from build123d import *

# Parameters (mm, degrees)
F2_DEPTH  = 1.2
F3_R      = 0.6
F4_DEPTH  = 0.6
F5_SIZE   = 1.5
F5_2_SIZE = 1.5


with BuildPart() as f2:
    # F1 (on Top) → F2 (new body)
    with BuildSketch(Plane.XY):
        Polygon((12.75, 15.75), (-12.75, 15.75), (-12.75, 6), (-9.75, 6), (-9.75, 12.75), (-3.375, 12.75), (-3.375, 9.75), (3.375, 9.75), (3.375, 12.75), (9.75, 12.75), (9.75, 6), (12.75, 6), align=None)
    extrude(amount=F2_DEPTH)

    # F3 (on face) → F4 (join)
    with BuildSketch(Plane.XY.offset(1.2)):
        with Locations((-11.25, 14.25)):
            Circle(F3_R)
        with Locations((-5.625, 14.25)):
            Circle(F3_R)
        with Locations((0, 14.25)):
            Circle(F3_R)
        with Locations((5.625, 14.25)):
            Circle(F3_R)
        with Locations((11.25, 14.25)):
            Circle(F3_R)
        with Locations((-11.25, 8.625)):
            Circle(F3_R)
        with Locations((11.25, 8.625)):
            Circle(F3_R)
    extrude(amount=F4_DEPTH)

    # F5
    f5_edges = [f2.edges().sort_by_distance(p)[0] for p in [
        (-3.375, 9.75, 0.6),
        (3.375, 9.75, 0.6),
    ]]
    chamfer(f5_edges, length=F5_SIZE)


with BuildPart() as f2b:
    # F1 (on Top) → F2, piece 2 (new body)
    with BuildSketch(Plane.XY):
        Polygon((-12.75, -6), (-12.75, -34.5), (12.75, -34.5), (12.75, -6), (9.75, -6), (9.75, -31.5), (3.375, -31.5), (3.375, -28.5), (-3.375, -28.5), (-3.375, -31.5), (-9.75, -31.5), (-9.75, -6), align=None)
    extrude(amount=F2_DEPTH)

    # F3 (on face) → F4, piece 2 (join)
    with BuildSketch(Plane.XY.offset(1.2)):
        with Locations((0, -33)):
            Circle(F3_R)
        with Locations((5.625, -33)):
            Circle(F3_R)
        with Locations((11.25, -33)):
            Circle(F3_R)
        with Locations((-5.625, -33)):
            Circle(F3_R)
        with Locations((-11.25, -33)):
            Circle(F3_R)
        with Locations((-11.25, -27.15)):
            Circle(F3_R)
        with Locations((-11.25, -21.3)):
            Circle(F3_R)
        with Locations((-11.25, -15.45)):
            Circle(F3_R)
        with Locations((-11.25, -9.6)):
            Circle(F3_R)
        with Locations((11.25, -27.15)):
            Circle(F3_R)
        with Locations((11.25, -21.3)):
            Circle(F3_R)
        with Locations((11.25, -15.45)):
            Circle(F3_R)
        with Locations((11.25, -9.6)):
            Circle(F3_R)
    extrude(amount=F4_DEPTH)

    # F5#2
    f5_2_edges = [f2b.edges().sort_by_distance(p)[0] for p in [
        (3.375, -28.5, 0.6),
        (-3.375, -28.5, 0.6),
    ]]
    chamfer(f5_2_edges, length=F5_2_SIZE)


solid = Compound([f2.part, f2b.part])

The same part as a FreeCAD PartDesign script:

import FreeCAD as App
import Part
import Sketcher
Q = App.Units.Quantity


def edges_at(feature, points):
    """Names of the edges that pass closest to the given points."""
    edges = feature.Shape.Edges
    near = lambda p: min(range(len(edges)), key=lambda i: edges[i].distToShape(Part.Vertex(*p))[0])
    return sorted({f"Edge{near(p) + 1}" for p in points})


def add_polygon(sketch, points):
    """Adds a closed chain of lines whose ends are joined by coincident constraints."""
    first, n = sketch.GeometryCount, len(points)
    for a, b in zip(points, points[1:] + points[:1]):
        sketch.addGeometry(Part.LineSegment(App.Vector(*a, 0), App.Vector(*b, 0)), False)
    for i in range(n):
        sketch.addConstraint(Sketcher.Constraint("Coincident", first + i, 2, first + (i + 1) % n, 1))

doc = App.newDocument("Part")
params = doc.addObject("Spreadsheet::Sheet", "Params")
for row, (alias, value) in enumerate([
    ("sketch1_width", "3 mm"),
    ("sketch1_width2", "25.5 mm"),
    ("sketch1_width3", "6.75 mm"),
    ("pad1_length", "1.2 mm"),
    ("sketch2_diameter", "1.2 mm"),
    ("pad2_length", "0.6 mm"),
    ("chamfer_size", "1.5 mm"),
    ("sketch3_width", "3 mm"),
    ("sketch3_width2", "25.5 mm"),
    ("sketch3_height", "28.5 mm"),
    ("sketch3_width3", "6.75 mm"),
    ("pad3_length", "1.2 mm"),
    ("sketch4_diameter", "1.2 mm"),
    ("pad4_length", "0.6 mm"),
    ("chamfer2_size", "1.5 mm"),
], start=1):
    params.set(f"A{row}", alias)
    params.set(f"B{row}", "=" + value)
    params.setAlias(f"B{row}", alias)

body = doc.addObject("PartDesign::Body", "Body")

sketch1 = body.newObject("Sketcher::SketchObject", "Sketch")
sketch1.AttachmentSupport = (doc.getObject("XY_Plane"), [""])
sketch1.MapMode = "FlatFace"
add_polygon(sketch1, [(12.8, 15.8), (-12.8, 15.8), (-12.8, 6), (-9.8, 6), (-9.8, 12.8), (-3.4, 12.8), (-3.4, 9.8), (3.4, 9.8), (3.4, 12.8), (9.8, 12.8), (9.8, 6), (12.8, 6)])
sketch1.addConstraint([
    Sketcher.Constraint("Horizontal", 0),
    Sketcher.Constraint("Vertical", 1),
    Sketcher.Constraint("Horizontal", 2),
    Sketcher.Constraint("Vertical", 3),
    Sketcher.Constraint("Horizontal", 4),
    Sketcher.Constraint("Vertical", 5),
    Sketcher.Constraint("Horizontal", 6),
    Sketcher.Constraint("Vertical", 7),
    Sketcher.Constraint("Horizontal", 8),
    Sketcher.Constraint("Vertical", 9),
    Sketcher.Constraint("Horizontal", 10),
    Sketcher.Constraint("Vertical", 11),
    Sketcher.Constraint("Symmetric", 4, 2, 7, 2, -2),
    Sketcher.Constraint("Symmetric", 2, 2, 9, 2, -2),
    Sketcher.Constraint("Equal", 2, 10),
    Sketcher.Constraint("Equal", 6, 3),
    Sketcher.Constraint("Equal", 10, 5),
    Sketcher.Constraint("DistanceX", 2, 1, 2, 2, Q("3 mm")),
    Sketcher.Constraint("DistanceX", 0, 2, 0, 1, Q("25.5 mm")),
    Sketcher.Constraint("DistanceY", -1, 1, 1, 2, Q("6 mm")),
    Sketcher.Constraint("DistanceY", 3, 2, 0, 2, Q("3 mm")),
    Sketcher.Constraint("DistanceX", 6, 1, 6, 2, Q("6.75 mm")),
])
sketch1.setExpression("Constraints[29]", "Params.sketch1_width")
sketch1.setExpression("Constraints[30]", "Params.sketch1_width2")
sketch1.setExpression("Constraints[33]", "Params.sketch1_width3")
pad1 = body.newObject("PartDesign::Pad", "Pad")
pad1.Profile = sketch1
pad1.setExpression("Length", "Params.pad1_length")

sketch2 = body.newObject("Sketcher::SketchObject", "Sketch001")
sketch2.AttachmentSupport = (doc.getObject("XY_Plane"), [""])
sketch2.MapMode = "FlatFace"
sketch2.AttachmentOffset = App.Placement(App.Vector(0, 0, 1.2), App.Rotation())
sketch2.addGeometry([
    Part.Circle(App.Vector(-11.2, 14.2, 0), App.Vector(0, 0, 1), 0.6),
    Part.Circle(App.Vector(-5.6, 14.2, 0), App.Vector(0, 0, 1), 0.6),
    Part.Circle(App.Vector(0, 14.2, 0), App.Vector(0, 0, 1), 0.6),
    Part.Circle(App.Vector(5.6, 14.2, 0), App.Vector(0, 0, 1), 0.6),
    Part.Circle(App.Vector(11.2, 14.2, 0), App.Vector(0, 0, 1), 0.6),
    Part.Circle(App.Vector(-11.2, 8.6, 0), App.Vector(0, 0, 1), 0.6),
    Part.Circle(App.Vector(11.2, 8.6, 0), App.Vector(0, 0, 1), 0.6),
], False)
sketch2.addConstraint([
    Sketcher.Constraint("Equal", 0, 1),
    Sketcher.Constraint("Equal", 1, 2),
    Sketcher.Constraint("Equal", 2, 3),
    Sketcher.Constraint("Equal", 3, 4),
    Sketcher.Constraint("Equal", 4, 5),
    Sketcher.Constraint("Equal", 5, 6),
    Sketcher.Constraint("Symmetric", 1, 3, 3, 3, -2),
    Sketcher.Constraint("Symmetric", 0, 3, 4, 3, -2),
    Sketcher.Constraint("Symmetric", 5, 3, 6, 3, -2),
    Sketcher.Constraint("PointOnObject", 2, 3, -2),
    Sketcher.Constraint("Horizontal", 0, 3, 1, 3),
    Sketcher.Constraint("Horizontal", 1, 3, 2, 3),
    Sketcher.Constraint("Vertical", 0, 3, 5, 3),
    Sketcher.Constraint("Diameter", 0, Q("1.2 mm")),
    Sketcher.Constraint("DistanceX", 0, 3, 4, 3, Q("22.5 mm")),
    Sketcher.Constraint("DistanceY", -1, 1, 0, 3, Q("14.25 mm")),
    Sketcher.Constraint("DistanceX", 1, 3, 3, 3, Q("11.25 mm")),
    Sketcher.Constraint("DistanceY", -1, 1, 5, 3, Q("8.625 mm")),
])
sketch2.setExpression("Constraints[13]", "Params.sketch2_diameter")
pad2 = body.newObject("PartDesign::Pad", "Pad001")
pad2.Profile = sketch2
pad2.setExpression("Length", "Params.pad2_length")
doc.recompute()

chamfer = body.newObject("PartDesign::Chamfer", "Chamfer")
chamfer.Base = (pad2, edges_at(pad2, [(-3.375, 9.75, 0.6), (3.375, 9.75, 0.6)]))
chamfer.setExpression("Size", "Params.chamfer_size")
body2 = doc.addObject("PartDesign::Body", "Body001")

sketch3 = body2.newObject("Sketcher::SketchObject", "Sketch002")
sketch3.AttachmentSupport = (doc.getObject("XY_Plane001"), [""])
sketch3.MapMode = "FlatFace"
add_polygon(sketch3, [(-12.8, -6), (-12.8, -34.5), (12.8, -34.5), (12.8, -6), (9.8, -6), (9.8, -31.5), (3.4, -31.5), (3.4, -28.5), (-3.4, -28.5), (-3.4, -31.5), (-9.8, -31.5), (-9.8, -6)])
sketch3.addConstraint([
    Sketcher.Constraint("Vertical", 0),
    Sketcher.Constraint("Horizontal", 1),
    Sketcher.Constraint("Vertical", 2),
    Sketcher.Constraint("Horizontal", 3),
    Sketcher.Constraint("Vertical", 4),
    Sketcher.Constraint("Horizontal", 5),
    Sketcher.Constraint("Vertical", 6),
    Sketcher.Constraint("Horizontal", 7),
    Sketcher.Constraint("Vertical", 8),
    Sketcher.Constraint("Horizontal", 9),
    Sketcher.Constraint("Vertical", 10),
    Sketcher.Constraint("Horizontal", 11),
    Sketcher.Constraint("Symmetric", 5, 2, 8, 2, -2),
    Sketcher.Constraint("Symmetric", 3, 2, 10, 2, -2),
    Sketcher.Constraint("Equal", 3, 11),
    Sketcher.Constraint("Equal", 1, 4),
    Sketcher.Constraint("Equal", 11, 6),
    Sketcher.Constraint("DistanceX", 3, 2, 3, 1, Q("3 mm")),
    Sketcher.Constraint("DistanceX", 1, 1, 1, 2, Q("25.5 mm")),
    Sketcher.Constraint("DistanceY", 0, 2, 0, 1, Q("28.5 mm")),
    Sketcher.Constraint("DistanceY", 2, 2, -1, 1, Q("6 mm")),
    Sketcher.Constraint("DistanceX", 7, 2, 7, 1, Q("6.75 mm")),
])
sketch3.setExpression("Constraints[29]", "Params.sketch3_width")
sketch3.setExpression("Constraints[30]", "Params.sketch3_width2")
sketch3.setExpression("Constraints[31]", "Params.sketch3_height")
sketch3.setExpression("Constraints[33]", "Params.sketch3_width3")
pad3 = body2.newObject("PartDesign::Pad", "Pad002")
pad3.Profile = sketch3
pad3.setExpression("Length", "Params.pad3_length")

sketch4 = body2.newObject("Sketcher::SketchObject", "Sketch003")
sketch4.AttachmentSupport = (doc.getObject("XY_Plane001"), [""])
sketch4.MapMode = "FlatFace"
sketch4.AttachmentOffset = App.Placement(App.Vector(0, 0, 1.2), App.Rotation())
sketch4.addGeometry([
    Part.Circle(App.Vector(0, -33, 0), App.Vector(0, 0, 1), 0.6),
    Part.Circle(App.Vector(5.6, -33, 0), App.Vector(0, 0, 1), 0.6),
    Part.Circle(App.Vector(11.2, -33, 0), App.Vector(0, 0, 1), 0.6),
    Part.Circle(App.Vector(-5.6, -33, 0), App.Vector(0, 0, 1), 0.6),
    Part.Circle(App.Vector(-11.2, -33, 0), App.Vector(0, 0, 1), 0.6),
    Part.Circle(App.Vector(-11.2, -27.1, 0), App.Vector(0, 0, 1), 0.6),
    Part.Circle(App.Vector(-11.2, -21.3, 0), App.Vector(0, 0, 1), 0.6),
    Part.Circle(App.Vector(-11.2, -15.4, 0), App.Vector(0, 0, 1), 0.6),
    Part.Circle(App.Vector(-11.2, -9.6, 0), App.Vector(0, 0, 1), 0.6),
    Part.Circle(App.Vector(11.2, -27.1, 0), App.Vector(0, 0, 1), 0.6),
    Part.Circle(App.Vector(11.2, -21.3, 0), App.Vector(0, 0, 1), 0.6),
    Part.Circle(App.Vector(11.2, -15.4, 0), App.Vector(0, 0, 1), 0.6),
    Part.Circle(App.Vector(11.2, -9.6, 0), App.Vector(0, 0, 1), 0.6),
], False)
sketch4.addConstraint([
    Sketcher.Constraint("Equal", 0, 1),
    Sketcher.Constraint("Equal", 1, 2),
    Sketcher.Constraint("Equal", 2, 3),
    Sketcher.Constraint("Equal", 3, 4),
    Sketcher.Constraint("Equal", 4, 5),
    Sketcher.Constraint("Equal", 5, 6),
    Sketcher.Constraint("Equal", 6, 7),
    Sketcher.Constraint("Equal", 7, 8),
    Sketcher.Constraint("Equal", 8, 9),
    Sketcher.Constraint("Equal", 9, 10),
    Sketcher.Constraint("Equal", 10, 11),
    Sketcher.Constraint("Equal", 11, 12),
    Sketcher.Constraint("Symmetric", 1, 3, 3, 3, -2),
    Sketcher.Constraint("Symmetric", 2, 3, 4, 3, -2),
    Sketcher.Constraint("Symmetric", 5, 3, 9, 3, -2),
    Sketcher.Constraint("Symmetric", 6, 3, 10, 3, -2),
    Sketcher.Constraint("Symmetric", 7, 3, 11, 3, -2),
    Sketcher.Constraint("Symmetric", 8, 3, 12, 3, -2),
    Sketcher.Constraint("PointOnObject", 0, 3, -2),
    Sketcher.Constraint("Horizontal", 0, 3, 1, 3),
    Sketcher.Constraint("Horizontal", 1, 3, 2, 3),
    Sketcher.Constraint("Vertical", 4, 3, 5, 3),
    Sketcher.Constraint("Vertical", 5, 3, 6, 3),
    Sketcher.Constraint("Vertical", 6, 3, 7, 3),
    Sketcher.Constraint("Vertical", 7, 3, 8, 3),
    Sketcher.Constraint("Diameter", 0, Q("1.2 mm")),
    Sketcher.Constraint("DistanceY", 0, 3, -1, 1, Q("33 mm")),
    Sketcher.Constraint("DistanceY", 6, 3, -1, 1, Q("21.3 mm")),
    Sketcher.Constraint("DistanceY", 8, 3, -1, 1, Q("9.6 mm")),
    Sketcher.Constraint("DistanceX", 4, 3, 2, 3, Q("22.5 mm")),
    Sketcher.Constraint("DistanceY", 5, 3, 7, 3, Q("11.7 mm")),
    Sketcher.Constraint("DistanceY", 5, 3, -1, 1, Q("27.15 mm")),
    Sketcher.Constraint("DistanceX", 3, 3, 1, 3, Q("11.25 mm")),
])
sketch4.setExpression("Constraints[25]", "Params.sketch4_diameter")
pad4 = body2.newObject("PartDesign::Pad", "Pad003")
pad4.Profile = sketch4
pad4.setExpression("Length", "Params.pad4_length")
doc.recompute()

chamfer2 = body2.newObject("PartDesign::Chamfer", "Chamfer001")
chamfer2.Base = (pad4, edges_at(pad4, [(3.375, -28.5, 0.6), (-3.375, -28.5, 0.6)]))
chamfer2.setExpression("Size", "Params.chamfer2_size")

doc.recompute()
